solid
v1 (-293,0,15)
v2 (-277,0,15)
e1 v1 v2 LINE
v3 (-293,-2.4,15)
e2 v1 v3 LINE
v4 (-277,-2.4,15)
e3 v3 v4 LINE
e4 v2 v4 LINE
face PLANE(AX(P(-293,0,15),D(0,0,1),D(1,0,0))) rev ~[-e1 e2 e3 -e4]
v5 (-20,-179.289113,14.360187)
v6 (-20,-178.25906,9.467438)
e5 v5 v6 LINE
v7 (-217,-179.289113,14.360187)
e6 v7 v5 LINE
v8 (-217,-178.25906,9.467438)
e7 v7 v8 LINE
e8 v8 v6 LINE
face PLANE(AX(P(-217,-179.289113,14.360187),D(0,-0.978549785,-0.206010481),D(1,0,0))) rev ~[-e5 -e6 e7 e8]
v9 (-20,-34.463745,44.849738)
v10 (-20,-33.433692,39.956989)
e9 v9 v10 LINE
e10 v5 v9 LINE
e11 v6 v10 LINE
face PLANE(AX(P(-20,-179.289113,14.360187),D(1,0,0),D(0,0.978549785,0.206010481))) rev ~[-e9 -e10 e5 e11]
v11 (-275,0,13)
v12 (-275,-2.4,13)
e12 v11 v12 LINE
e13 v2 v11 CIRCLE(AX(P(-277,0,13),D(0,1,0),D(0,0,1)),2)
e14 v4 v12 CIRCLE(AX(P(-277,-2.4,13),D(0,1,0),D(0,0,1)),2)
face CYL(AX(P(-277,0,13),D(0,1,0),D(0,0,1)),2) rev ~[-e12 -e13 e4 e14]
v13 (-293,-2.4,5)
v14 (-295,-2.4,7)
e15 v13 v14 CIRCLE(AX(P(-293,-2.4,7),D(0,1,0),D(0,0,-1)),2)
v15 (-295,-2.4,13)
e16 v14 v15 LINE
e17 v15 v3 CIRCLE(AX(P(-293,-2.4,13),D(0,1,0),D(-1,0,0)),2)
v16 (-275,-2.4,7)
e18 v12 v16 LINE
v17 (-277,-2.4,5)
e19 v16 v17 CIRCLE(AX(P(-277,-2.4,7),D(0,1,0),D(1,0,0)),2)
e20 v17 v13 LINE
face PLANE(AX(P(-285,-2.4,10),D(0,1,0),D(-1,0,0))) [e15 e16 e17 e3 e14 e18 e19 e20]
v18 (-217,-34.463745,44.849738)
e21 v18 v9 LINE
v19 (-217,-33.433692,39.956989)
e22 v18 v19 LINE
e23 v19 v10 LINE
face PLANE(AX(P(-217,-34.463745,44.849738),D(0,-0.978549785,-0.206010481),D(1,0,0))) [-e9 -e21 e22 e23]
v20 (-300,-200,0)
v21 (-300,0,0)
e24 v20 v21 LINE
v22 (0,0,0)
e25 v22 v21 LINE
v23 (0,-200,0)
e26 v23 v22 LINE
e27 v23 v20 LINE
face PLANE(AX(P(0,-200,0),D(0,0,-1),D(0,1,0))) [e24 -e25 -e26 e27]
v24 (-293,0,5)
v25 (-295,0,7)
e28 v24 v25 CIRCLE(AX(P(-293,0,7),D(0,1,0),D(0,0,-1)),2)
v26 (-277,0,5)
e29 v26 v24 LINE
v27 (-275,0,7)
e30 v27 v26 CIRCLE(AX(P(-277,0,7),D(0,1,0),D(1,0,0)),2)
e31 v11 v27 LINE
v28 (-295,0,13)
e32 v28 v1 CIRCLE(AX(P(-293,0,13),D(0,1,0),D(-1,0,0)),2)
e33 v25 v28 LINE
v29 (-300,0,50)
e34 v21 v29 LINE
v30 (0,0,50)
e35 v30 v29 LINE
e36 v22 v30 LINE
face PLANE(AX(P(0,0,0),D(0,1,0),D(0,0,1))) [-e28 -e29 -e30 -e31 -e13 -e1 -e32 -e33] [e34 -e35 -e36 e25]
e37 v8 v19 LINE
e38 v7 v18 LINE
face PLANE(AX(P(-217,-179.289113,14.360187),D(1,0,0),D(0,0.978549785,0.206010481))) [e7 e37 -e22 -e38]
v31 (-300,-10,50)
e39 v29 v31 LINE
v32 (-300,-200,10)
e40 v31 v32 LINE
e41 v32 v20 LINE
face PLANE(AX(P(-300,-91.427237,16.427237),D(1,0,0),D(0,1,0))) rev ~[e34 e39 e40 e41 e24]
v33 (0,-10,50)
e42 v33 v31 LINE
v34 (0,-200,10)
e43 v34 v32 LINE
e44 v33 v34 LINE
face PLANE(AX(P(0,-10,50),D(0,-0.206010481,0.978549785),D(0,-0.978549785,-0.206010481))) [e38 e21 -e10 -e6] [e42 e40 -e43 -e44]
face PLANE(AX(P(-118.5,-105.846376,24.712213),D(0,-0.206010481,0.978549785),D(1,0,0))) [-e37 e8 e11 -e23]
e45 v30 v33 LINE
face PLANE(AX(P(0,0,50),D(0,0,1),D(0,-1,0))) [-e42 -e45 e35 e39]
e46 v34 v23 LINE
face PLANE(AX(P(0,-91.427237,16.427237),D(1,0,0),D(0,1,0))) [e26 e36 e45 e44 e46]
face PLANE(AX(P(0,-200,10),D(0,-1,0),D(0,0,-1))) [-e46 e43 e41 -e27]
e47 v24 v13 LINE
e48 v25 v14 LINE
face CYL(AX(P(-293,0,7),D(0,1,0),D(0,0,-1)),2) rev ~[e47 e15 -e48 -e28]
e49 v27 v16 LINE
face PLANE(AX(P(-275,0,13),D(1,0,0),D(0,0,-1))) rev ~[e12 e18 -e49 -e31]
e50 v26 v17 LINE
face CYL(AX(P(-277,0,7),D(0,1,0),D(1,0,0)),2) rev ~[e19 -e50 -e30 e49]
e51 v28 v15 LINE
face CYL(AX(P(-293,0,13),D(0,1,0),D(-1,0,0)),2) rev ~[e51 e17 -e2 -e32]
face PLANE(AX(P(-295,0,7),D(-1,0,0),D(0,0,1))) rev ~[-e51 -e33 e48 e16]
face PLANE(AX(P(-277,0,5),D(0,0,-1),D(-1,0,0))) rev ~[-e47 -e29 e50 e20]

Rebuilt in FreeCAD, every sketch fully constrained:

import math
import FreeCAD as App
import Part
import Sketcher

V = App.Vector

doc = App.newDocument("Part")
body = doc.addObject("PartDesign::Body", "Body")

# Sketch on YZ plane
sketch1 = body.newObject("Sketcher::SketchObject", "Sketch")
sketch1.AttachmentSupport = (doc.getObject("YZ_Plane"), [""])
sketch1.MapMode = "FlatFace"
sketch1.addGeometry(Part.LineSegment(V(-200, 10, 0), V(-200, 0, 0)), False)
sketch1.addGeometry(Part.LineSegment(V(-200, 0, 0), V(0, 0, 0)), False)
sketch1.addGeometry(Part.LineSegment(V(0, 0, 0), V(0, 50, 0)), False)
sketch1.addGeometry(Part.LineSegment(V(0, 50, 0), V(-10, 50, 0)), False)
sketch1.addGeometry(Part.LineSegment(V(-10, 50, 0), V(-200, 10, 0)), False)
sketch1.addConstraint(Sketcher.Constraint("Coincident", 0, 2, 1, 1))
sketch1.addConstraint(Sketcher.Constraint("Coincident", 1, 2, 2, 1))
sketch1.addConstraint(Sketcher.Constraint("Coincident", 2, 2, 3, 1))
sketch1.addConstraint(Sketcher.Constraint("Coincident", 3, 2, 4, 1))
sketch1.addConstraint(Sketcher.Constraint("Coincident", 4, 2, 0, 1))
sketch1.addConstraint(Sketcher.Constraint("Vertical", 0))
sketch1.addConstraint(Sketcher.Constraint("Horizontal", 1))
sketch1.addConstraint(Sketcher.Constraint("Vertical", 2))
sketch1.addConstraint(Sketcher.Constraint("Horizontal", 3))
sketch1.addConstraint(Sketcher.Constraint("Coincident", 1, 2, -1, 1))
sketch1.addConstraint(Sketcher.Constraint("Equal", 3, 0))
sketch1.addConstraint(Sketcher.Constraint("DistanceX", 1, 1, 1, 2, 200.0))
sketch1.addConstraint(Sketcher.Constraint("DistanceX", 3, 2, 3, 1, 10.0))
sketch1.addConstraint(Sketcher.Constraint("DistanceY", 2, 1, 2, 2, 50.0))
pad1 = body.newObject("PartDesign::Pad", "Pad")
pad1.Profile = sketch1
pad1.Length = 300
pad1.Reversed = True

# Sketch on an angled plane
sketch2 = body.newObject("Sketcher::SketchObject", "Sketch001")
sketch2.Placement = App.Placement(V(0, -10.503979, 49.893899), App.Rotation(V(1, 0, 0), V(0, 0.978549785, 0.206010481), V(0, -0.206010481, 0.978549785), "ZXY"))
sketch2.addGeometry(Part.LineSegment(V(-217, -24.484974, 0), V(-217, -172.484974, 0)), False)
sketch2.addGeometry(Part.LineSegment(V(-217, -172.484974, 0), V(-20, -172.484974, 0)), False)
sketch2.addGeometry(Part.LineSegment(V(-20, -172.484974, 0), V(-20, -24.484974, 0)), False)
sketch2.addGeometry(Part.LineSegment(V(-20, -24.484974, 0), V(-217, -24.484974, 0)), False)
sketch2.addConstraint(Sketcher.Constraint("Coincident", 0, 2, 1, 1))
sketch2.addConstraint(Sketcher.Constraint("Coincident", 1, 2, 2, 1))
sketch2.addConstraint(Sketcher.Constraint("Coincident", 2, 2, 3, 1))
sketch2.addConstraint(Sketcher.Constraint("Coincident", 3, 2, 0, 1))
sketch2.addConstraint(Sketcher.Constraint("Vertical", 0))
sketch2.addConstraint(Sketcher.Constraint("Horizontal", 1))
sketch2.addConstraint(Sketcher.Constraint("Vertical", 2))
sketch2.addConstraint(Sketcher.Constraint("Horizontal", 3))
sketch2.addConstraint(Sketcher.Constraint("DistanceX", 1, 1, 1, 2, 197.0))
sketch2.addConstraint(Sketcher.Constraint("DistanceY", 0, 2, 0, 1, 148.0))
sketch2.addConstraint(Sketcher.Constraint("DistanceX", 0, 2, -1, 1, 217.0))
sketch2.addConstraint(Sketcher.Constraint("DistanceY", 0, 2, -1, 1, 172.484974))
pocket1 = body.newObject("PartDesign::Pocket", "Pocket")
pocket1.Profile = sketch2
pocket1.Length = 5

# Sketch on XZ plane
sketch3 = body.newObject("Sketcher::SketchObject", "Sketch002")
sketch3.AttachmentSupport = (doc.getObject("XZ_Plane"), [""])
sketch3.MapMode = "FlatFace"
sketch3.addGeometry(Part.LineSegment(V(-277, 5, 0), V(-293, 5, 0)), False)
sketch3.addGeometry(Part.ArcOfCircle(Part.Circle(V(-293, 7, 0), V(0, 0, 1), 2), math.radians(180), math.radians(270)), False)
sketch3.addGeometry(Part.LineSegment(V(-295, 7, 0), V(-295, 13, 0)), False)
sketch3.addGeometry(Part.ArcOfCircle(Part.Circle(V(-293, 13, 0), V(0, 0, 1), 2), math.radians(90), math.radians(180)), False)
sketch3.addGeometry(Part.LineSegment(V(-293, 15, 0), V(-277, 15, 0)), False)
sketch3.addGeometry(Part.ArcOfCircle(Part.Circle(V(-277, 13, 0), V(0, 0, 1), 2), math.radians(0), math.radians(90)), False)
sketch3.addGeometry(Part.LineSegment(V(-275, 13, 0), V(-275, 7, 0)), False)
sketch3.addGeometry(Part.ArcOfCircle(Part.Circle(V(-277, 7, 0), V(0, 0, 1), 2), math.radians(-90), math.radians(0)), False)
sketch3.addConstraint(Sketcher.Constraint("Tangent", 0, 2, 1, 2))
sketch3.addConstraint(Sketcher.Constraint("Tangent", 1, 1, 2, 1))
sketch3.addConstraint(Sketcher.Constraint("Tangent", 2, 2, 3, 2))
sketch3.addConstraint(Sketcher.Constraint("Tangent", 3, 1, 4, 1))
sketch3.addConstraint(Sketcher.Constraint("Tangent", 4, 2, 5, 2))
sketch3.addConstraint(Sketcher.Constraint("Tangent", 5, 1, 6, 1))
sketch3.addConstraint(Sketcher.Constraint("Tangent", 6, 2, 7, 2))
sketch3.addConstraint(Sketcher.Constraint("Tangent", 7, 1, 0, 1))
sketch3.addConstraint(Sketcher.Constraint("Horizontal", 0))
sketch3.addConstraint(Sketcher.Constraint("Vertical", 2))
sketch3.addConstraint(Sketcher.Constraint("Horizontal", 4))
sketch3.addConstraint(Sketcher.Constraint("Vertical", 6))
sketch3.addConstraint(Sketcher.Constraint("Equal", 1, 3))
sketch3.addConstraint(Sketcher.Constraint("Equal", 3, 5))
sketch3.addConstraint(Sketcher.Constraint("Equal", 5, 7))
sketch3.addConstraint(Sketcher.Constraint("Radius", 1, 2.0))
sketch3.addConstraint(Sketcher.Constraint("DistanceX", 0, 2, 0, 1, 16.0))
sketch3.addConstraint(Sketcher.Constraint("DistanceY", 2, 1, 2, 2, 6.0))
sketch3.addConstraint(Sketcher.Constraint("DistanceX", 1, 3, -1, 1, 293.0))
sketch3.addConstraint(Sketcher.Constraint("DistanceY", -1, 1, 1, 3, 7.0))
pocket2 = body.newObject("PartDesign::Pocket", "Pocket001")
pocket2.Profile = sketch3
pocket2.Length = 2.4
pocket2.Reversed = True

doc.recompute()
